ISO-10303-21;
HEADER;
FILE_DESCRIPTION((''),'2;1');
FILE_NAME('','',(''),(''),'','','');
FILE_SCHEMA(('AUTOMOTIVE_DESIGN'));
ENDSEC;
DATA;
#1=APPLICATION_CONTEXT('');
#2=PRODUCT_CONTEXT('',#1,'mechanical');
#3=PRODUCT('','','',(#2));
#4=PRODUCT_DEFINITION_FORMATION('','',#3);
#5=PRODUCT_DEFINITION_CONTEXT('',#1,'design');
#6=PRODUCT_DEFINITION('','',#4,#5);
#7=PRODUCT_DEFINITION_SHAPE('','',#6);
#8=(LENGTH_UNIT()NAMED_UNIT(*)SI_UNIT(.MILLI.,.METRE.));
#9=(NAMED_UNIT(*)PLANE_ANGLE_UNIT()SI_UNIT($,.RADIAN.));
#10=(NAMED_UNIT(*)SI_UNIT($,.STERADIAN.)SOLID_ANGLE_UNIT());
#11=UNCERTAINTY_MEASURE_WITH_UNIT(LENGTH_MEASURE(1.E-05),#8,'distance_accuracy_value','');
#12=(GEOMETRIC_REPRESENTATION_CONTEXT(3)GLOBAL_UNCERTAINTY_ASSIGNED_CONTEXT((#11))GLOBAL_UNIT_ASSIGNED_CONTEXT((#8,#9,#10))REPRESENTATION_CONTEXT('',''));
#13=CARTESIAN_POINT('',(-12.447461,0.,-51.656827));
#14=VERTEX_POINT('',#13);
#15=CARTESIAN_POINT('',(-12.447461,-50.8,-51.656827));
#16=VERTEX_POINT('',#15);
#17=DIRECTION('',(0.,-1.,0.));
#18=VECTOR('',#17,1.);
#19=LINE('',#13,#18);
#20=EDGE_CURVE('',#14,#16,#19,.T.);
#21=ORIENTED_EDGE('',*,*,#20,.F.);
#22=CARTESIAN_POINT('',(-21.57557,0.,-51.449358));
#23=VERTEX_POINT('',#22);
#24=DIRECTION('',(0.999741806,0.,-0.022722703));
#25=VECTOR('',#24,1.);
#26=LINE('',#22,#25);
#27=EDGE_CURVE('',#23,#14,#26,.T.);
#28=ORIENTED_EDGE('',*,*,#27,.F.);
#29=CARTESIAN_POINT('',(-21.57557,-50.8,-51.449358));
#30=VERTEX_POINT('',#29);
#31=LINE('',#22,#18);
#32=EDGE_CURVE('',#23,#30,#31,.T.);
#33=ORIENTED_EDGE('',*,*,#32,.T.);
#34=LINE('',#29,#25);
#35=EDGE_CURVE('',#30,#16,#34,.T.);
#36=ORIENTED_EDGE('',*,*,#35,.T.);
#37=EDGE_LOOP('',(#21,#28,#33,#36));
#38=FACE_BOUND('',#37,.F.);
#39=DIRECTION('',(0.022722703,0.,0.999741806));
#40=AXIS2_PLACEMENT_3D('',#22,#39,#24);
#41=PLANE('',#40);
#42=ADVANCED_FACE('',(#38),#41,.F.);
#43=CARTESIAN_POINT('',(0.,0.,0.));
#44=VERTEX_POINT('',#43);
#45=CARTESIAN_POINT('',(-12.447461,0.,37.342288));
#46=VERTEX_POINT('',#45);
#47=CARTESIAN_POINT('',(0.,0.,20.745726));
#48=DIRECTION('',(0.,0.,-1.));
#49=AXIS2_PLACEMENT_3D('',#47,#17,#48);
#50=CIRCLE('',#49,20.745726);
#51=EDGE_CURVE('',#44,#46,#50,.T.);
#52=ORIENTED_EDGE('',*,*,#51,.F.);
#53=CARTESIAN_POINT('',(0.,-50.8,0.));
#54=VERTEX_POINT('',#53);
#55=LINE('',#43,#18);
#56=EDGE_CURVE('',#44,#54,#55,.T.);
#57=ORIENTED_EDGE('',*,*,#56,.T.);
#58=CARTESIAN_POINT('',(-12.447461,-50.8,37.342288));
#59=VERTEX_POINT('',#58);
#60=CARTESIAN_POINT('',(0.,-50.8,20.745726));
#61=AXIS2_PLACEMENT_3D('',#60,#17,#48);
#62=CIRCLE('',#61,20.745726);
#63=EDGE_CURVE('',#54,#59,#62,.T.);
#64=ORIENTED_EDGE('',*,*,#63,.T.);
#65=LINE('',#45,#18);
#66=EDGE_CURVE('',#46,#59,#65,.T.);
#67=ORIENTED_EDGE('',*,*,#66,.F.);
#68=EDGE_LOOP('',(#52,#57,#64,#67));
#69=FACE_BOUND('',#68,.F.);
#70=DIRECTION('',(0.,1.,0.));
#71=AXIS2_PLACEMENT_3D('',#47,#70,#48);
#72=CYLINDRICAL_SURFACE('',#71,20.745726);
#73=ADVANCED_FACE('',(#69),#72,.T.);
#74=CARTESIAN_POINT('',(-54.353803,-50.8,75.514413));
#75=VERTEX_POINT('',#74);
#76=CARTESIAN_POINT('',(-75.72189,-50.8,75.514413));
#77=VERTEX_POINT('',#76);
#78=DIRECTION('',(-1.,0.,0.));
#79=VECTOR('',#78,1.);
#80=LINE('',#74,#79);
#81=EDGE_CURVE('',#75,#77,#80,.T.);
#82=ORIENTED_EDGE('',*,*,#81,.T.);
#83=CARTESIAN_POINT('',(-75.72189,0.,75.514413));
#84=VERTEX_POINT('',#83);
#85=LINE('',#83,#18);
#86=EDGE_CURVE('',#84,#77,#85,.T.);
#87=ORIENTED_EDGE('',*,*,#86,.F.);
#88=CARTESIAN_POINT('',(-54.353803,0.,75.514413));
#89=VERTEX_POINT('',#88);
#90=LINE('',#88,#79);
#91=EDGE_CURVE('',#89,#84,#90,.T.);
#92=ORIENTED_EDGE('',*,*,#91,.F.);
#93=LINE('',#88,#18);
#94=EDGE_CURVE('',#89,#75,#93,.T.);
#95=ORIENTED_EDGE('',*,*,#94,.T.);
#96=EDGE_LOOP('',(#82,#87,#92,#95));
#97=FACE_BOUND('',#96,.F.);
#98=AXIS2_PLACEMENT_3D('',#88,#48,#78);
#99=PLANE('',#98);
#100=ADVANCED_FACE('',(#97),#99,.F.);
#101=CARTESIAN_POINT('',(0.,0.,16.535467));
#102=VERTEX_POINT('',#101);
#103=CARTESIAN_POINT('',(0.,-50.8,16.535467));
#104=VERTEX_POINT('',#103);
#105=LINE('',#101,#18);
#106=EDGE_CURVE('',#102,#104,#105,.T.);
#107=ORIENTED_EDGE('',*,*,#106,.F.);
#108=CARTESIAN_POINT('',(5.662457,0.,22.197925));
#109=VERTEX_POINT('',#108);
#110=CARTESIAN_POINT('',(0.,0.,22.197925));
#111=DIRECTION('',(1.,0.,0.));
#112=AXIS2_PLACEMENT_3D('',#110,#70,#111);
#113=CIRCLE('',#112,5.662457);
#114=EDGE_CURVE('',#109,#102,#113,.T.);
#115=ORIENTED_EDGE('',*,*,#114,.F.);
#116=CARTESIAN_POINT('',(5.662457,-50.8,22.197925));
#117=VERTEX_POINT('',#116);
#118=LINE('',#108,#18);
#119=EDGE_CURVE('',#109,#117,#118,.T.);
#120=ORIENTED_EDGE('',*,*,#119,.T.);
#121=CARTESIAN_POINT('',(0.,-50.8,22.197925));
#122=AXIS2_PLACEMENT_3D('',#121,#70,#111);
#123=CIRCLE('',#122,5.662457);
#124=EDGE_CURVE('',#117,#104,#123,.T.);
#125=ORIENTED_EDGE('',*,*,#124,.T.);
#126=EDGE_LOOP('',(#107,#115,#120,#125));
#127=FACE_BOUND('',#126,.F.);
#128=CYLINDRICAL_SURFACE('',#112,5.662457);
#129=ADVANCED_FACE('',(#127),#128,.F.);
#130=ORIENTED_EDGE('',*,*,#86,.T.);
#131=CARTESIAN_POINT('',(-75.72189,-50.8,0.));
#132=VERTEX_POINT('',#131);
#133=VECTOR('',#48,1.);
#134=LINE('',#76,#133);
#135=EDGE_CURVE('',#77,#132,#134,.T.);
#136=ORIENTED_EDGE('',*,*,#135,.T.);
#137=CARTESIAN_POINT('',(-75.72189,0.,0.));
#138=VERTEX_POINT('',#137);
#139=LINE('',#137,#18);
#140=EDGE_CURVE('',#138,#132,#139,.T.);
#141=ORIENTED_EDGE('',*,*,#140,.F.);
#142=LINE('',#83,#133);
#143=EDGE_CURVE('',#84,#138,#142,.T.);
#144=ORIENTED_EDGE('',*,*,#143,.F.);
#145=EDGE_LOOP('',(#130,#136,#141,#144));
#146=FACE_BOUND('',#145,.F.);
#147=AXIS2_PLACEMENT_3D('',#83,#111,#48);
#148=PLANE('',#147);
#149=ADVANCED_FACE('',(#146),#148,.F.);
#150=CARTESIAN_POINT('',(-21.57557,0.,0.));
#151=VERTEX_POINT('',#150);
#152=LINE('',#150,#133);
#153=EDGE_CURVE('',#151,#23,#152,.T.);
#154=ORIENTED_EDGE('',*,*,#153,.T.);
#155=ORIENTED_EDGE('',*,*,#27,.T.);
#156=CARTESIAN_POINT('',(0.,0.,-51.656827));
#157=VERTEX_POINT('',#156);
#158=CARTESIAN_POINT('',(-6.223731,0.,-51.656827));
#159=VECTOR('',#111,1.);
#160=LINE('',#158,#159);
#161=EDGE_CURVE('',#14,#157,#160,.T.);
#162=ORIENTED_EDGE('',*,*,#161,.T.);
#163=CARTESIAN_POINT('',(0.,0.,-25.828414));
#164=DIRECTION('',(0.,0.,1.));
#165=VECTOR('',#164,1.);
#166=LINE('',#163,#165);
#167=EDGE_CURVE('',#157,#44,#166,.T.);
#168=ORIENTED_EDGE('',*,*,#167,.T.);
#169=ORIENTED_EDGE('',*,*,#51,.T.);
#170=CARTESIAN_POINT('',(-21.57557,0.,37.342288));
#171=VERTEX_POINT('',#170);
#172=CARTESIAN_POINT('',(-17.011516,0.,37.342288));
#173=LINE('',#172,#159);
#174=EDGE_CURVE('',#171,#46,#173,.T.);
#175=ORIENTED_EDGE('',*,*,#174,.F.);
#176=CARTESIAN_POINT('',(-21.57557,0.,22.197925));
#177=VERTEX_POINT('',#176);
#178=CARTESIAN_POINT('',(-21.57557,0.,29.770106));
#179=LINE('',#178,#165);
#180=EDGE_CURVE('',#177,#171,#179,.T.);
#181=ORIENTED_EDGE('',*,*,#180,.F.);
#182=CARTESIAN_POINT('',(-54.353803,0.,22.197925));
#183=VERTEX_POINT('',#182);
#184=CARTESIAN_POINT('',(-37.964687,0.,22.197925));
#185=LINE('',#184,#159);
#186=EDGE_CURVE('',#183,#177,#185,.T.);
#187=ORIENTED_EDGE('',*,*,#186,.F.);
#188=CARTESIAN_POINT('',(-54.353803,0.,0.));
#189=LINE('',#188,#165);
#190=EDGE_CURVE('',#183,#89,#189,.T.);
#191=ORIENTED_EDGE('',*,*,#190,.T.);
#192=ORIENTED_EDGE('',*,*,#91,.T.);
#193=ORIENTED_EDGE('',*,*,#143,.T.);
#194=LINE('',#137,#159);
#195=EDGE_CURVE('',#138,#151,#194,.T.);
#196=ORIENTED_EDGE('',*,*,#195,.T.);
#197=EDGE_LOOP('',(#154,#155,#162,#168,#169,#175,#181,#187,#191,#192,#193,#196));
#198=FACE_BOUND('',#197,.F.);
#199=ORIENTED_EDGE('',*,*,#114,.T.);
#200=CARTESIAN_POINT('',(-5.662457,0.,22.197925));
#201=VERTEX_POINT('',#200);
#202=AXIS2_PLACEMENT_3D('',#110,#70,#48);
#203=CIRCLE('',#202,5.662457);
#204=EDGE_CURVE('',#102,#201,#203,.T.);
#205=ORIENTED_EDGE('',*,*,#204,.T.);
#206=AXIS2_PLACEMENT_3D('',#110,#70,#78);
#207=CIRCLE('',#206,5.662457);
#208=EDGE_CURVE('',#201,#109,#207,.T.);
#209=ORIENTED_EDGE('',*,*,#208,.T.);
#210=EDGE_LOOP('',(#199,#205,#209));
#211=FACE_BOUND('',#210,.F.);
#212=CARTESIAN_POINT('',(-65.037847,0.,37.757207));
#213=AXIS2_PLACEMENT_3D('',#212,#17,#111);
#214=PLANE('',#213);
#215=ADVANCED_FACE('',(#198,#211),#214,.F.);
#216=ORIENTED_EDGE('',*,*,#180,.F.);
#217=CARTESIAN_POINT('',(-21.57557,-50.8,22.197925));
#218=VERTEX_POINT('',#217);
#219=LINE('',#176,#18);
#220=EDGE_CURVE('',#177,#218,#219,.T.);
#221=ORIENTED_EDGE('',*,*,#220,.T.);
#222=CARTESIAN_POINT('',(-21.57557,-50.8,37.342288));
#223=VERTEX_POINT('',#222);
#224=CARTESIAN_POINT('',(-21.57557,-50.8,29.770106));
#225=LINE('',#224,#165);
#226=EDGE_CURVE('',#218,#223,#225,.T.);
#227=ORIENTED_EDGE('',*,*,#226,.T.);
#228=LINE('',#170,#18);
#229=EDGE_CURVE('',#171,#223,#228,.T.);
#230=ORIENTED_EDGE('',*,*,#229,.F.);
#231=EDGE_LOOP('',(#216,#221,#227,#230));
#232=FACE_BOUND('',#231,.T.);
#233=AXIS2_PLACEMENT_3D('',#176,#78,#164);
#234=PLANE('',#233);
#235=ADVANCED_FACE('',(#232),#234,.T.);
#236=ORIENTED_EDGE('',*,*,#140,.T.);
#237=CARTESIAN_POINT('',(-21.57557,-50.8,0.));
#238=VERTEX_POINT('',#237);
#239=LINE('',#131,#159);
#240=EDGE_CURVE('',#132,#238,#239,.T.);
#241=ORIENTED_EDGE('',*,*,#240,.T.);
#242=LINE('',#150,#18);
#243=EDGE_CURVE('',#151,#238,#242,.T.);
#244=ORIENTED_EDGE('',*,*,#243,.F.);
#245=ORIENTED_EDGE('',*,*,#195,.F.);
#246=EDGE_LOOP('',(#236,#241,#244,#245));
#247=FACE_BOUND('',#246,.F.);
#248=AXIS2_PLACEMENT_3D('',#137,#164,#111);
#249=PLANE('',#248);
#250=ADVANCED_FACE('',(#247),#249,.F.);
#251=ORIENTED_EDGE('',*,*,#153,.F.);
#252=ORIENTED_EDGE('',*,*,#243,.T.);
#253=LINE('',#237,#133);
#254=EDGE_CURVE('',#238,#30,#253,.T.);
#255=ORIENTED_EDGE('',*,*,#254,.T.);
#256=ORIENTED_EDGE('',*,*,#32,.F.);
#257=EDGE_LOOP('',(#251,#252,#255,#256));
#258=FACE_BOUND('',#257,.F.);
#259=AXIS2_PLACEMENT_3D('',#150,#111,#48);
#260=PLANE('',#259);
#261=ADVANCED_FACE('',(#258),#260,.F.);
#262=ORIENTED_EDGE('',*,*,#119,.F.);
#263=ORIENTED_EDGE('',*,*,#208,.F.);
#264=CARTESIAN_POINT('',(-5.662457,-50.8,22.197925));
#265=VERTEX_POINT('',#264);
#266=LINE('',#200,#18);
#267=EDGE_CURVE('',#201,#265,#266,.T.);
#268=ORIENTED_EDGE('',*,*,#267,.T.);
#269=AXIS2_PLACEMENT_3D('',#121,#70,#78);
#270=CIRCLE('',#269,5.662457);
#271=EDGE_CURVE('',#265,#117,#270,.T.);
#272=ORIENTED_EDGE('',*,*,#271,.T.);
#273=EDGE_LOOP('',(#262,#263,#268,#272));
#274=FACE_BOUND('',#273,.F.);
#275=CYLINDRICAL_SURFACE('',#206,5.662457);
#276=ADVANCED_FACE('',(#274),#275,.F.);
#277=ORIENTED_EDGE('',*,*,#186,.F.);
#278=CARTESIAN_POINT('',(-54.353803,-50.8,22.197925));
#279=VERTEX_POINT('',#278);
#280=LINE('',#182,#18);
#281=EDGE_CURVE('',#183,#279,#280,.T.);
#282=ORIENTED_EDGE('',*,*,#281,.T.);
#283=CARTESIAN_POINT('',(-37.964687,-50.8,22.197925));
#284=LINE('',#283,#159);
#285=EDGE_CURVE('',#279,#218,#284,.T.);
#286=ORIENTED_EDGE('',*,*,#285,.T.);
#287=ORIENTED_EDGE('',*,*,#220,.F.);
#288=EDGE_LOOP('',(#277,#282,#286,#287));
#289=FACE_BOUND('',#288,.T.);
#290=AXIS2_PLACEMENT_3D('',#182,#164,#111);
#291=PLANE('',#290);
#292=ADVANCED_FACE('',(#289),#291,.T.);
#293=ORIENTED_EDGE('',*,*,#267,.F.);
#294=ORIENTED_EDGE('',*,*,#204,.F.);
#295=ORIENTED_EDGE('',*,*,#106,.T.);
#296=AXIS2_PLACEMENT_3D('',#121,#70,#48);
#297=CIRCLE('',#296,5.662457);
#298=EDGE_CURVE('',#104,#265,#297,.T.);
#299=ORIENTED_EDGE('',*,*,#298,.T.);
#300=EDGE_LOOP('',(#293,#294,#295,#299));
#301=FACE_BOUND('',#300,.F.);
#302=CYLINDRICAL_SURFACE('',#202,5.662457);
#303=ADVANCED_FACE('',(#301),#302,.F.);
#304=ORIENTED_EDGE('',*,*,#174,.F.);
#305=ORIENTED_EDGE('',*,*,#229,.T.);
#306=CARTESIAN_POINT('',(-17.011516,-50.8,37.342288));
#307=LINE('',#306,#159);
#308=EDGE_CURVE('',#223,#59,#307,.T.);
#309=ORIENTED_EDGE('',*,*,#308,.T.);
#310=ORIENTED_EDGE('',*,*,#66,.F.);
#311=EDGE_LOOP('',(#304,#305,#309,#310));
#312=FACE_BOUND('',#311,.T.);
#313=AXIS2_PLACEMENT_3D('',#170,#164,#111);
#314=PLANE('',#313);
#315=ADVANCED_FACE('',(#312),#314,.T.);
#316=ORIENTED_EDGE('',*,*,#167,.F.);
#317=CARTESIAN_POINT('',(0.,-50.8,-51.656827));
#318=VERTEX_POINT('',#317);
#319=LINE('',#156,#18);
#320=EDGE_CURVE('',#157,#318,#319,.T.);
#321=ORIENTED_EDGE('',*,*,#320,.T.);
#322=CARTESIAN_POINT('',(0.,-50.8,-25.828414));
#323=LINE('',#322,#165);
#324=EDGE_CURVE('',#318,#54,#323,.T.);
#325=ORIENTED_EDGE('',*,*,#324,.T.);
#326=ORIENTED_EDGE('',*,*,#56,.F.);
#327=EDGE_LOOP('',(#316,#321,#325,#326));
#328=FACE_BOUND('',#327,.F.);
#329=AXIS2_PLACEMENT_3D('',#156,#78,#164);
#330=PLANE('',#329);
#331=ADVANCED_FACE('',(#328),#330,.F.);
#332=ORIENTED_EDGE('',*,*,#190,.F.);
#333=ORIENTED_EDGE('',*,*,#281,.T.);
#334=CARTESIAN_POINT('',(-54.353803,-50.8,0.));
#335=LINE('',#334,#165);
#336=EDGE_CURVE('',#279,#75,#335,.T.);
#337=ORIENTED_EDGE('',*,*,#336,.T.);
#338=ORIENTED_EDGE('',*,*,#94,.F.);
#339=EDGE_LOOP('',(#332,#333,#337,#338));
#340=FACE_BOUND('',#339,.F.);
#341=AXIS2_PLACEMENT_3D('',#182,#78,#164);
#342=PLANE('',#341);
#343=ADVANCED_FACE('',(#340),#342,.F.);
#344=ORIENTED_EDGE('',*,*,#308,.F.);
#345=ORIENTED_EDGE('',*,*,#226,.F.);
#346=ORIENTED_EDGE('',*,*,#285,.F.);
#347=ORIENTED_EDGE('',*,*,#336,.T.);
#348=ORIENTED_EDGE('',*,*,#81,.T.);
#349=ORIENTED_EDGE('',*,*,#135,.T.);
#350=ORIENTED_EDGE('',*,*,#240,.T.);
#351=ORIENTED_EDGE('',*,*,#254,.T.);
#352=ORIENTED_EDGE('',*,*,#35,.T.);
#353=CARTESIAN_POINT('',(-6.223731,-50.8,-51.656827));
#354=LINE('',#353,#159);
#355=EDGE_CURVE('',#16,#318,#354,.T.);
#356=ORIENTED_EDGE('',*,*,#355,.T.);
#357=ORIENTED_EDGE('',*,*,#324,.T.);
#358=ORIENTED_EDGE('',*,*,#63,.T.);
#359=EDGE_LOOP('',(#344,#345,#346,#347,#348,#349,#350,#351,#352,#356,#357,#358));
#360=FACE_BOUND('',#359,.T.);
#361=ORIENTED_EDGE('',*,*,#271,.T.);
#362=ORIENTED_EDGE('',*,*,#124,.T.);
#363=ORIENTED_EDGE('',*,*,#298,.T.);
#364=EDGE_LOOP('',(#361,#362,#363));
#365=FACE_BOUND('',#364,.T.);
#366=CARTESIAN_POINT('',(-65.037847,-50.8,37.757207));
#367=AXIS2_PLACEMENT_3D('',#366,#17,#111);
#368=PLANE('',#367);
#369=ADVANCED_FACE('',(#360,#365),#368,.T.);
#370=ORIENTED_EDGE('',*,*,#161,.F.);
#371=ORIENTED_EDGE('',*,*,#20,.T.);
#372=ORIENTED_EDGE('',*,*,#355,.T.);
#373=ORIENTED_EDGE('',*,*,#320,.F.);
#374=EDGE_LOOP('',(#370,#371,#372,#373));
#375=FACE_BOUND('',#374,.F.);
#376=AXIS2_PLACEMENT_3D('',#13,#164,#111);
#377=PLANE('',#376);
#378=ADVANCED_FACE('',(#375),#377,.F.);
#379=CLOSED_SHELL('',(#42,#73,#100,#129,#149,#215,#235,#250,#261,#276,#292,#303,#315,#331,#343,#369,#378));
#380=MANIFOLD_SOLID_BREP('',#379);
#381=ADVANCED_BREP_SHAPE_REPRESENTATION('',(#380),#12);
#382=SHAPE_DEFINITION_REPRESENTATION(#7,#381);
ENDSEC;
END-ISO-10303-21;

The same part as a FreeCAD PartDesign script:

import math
import FreeCAD as App
import Part
import Sketcher
Q = App.Units.Quantity

doc = App.newDocument("Part")
body = doc.addObject("PartDesign::Body", "Body")

# Sketch on XZ plane
sketch1 = body.newObject("Sketcher::SketchObject", "Sketch")
sketch1.AttachmentSupport = (doc.getObject("XZ_Plane"), [""])
sketch1.MapMode = "FlatFace"
sketch1.addGeometry([
    Part.LineSegment(App.Vector(-54.353803, 75.514413, 0), App.Vector(-75.72189, 75.514413, 0)),  # 0
    Part.LineSegment(App.Vector(-75.72189, 75.514413, 0), App.Vector(-75.72189, 0, 0)),  # 1
    Part.LineSegment(App.Vector(-75.72189, 0, 0), App.Vector(-21.57557, 0, 0)),  # 2
    Part.LineSegment(App.Vector(-21.57557, 0, 0), App.Vector(-21.57557, -51.449358, 0)),  # 3
    Part.LineSegment(App.Vector(-21.57557, -51.449358, 0), App.Vector(-12.447461, -51.656827, 0)),  # 4
    Part.LineSegment(App.Vector(-12.447461, -51.656827, 0), App.Vector(0, -51.656827, 0)),  # 5
    Part.LineSegment(App.Vector(0, -51.656827, 0), App.Vector(0, 0, 0)),  # 6
    Part.ArcOfCircle(Part.Circle(App.Vector(0, 20.745726, 0), App.Vector(0, 0, 1), 20.745726), math.radians(-90), math.radians(126.869987)),  # 7
    Part.LineSegment(App.Vector(-12.447461, 37.342288, 0), App.Vector(-21.57557, 37.342288, 0)),  # 8
    Part.LineSegment(App.Vector(-21.57557, 37.342288, 0), App.Vector(-21.57557, 22.197925, 0)),  # 9
    Part.LineSegment(App.Vector(-21.57557, 22.197925, 0), App.Vector(-54.353803, 22.197925, 0)),  # 10
    Part.LineSegment(App.Vector(-54.353803, 22.197925, 0), App.Vector(-54.353803, 75.514413, 0)),  # 11
    Part.ArcOfCircle(Part.Circle(App.Vector(0, 22.197925, 0), App.Vector(0, 0, 1), 5.662457), math.radians(0), math.radians(180)),  # 12
    Part.ArcOfCircle(Part.Circle(App.Vector(0, 22.197925, 0), App.Vector(0, 0, 1), 5.662457), math.radians(-90), math.radians(0)),  # 13
    Part.ArcOfCircle(Part.Circle(App.Vector(0, 22.197925, 0), App.Vector(0, 0, 1), 5.662457), math.radians(180), math.radians(270)),  # 14
], False)
sketch1.addConstraint([
    Sketcher.Constraint("Coincident", 0, 2, 1, 1),
    Sketcher.Constraint("Coincident", 1, 2, 2, 1),
    Sketcher.Constraint("Coincident", 2, 2, 3, 1),
    Sketcher.Constraint("Coincident", 3, 2, 4, 1),
    Sketcher.Constraint("Coincident", 4, 2, 5, 1),
    Sketcher.Constraint("Coincident", 5, 2, 6, 1),
    Sketcher.Constraint("Coincident", 6, 2, 7, 1),
    Sketcher.Constraint("Coincident", 7, 2, 8, 1),
    Sketcher.Constraint("Coincident", 8, 2, 9, 1),
    Sketcher.Constraint("Coincident", 9, 2, 10, 1),
    Sketcher.Constraint("Coincident", 10, 2, 11, 1),
    Sketcher.Constraint("Coincident", 11, 2, 0, 1),
    Sketcher.Constraint("Tangent", 12, 1, 13, 2),
    Sketcher.Constraint("Tangent", 13, 1, 14, 2),
    Sketcher.Constraint("Tangent", 14, 1, 12, 2),
    Sketcher.Constraint("Horizontal", 0),
    Sketcher.Constraint("Vertical", 1),
    Sketcher.Constraint("Horizontal", 2),
    Sketcher.Constraint("Vertical", 3),
    Sketcher.Constraint("Horizontal", 5),
    Sketcher.Constraint("Vertical", 6),
    Sketcher.Constraint("Horizontal", 8),
    Sketcher.Constraint("Vertical", 9),
    Sketcher.Constraint("Horizontal", 10),
    Sketcher.Constraint("Vertical", 11),
    Sketcher.Constraint("Coincident", 6, 2, -1, 1),
    Sketcher.Constraint("Symmetric", 12, 1, 14, 1, -2),
    Sketcher.Constraint("PointOnObject", 7, 3, -2),
    Sketcher.Constraint("PointOnObject", 1, 2, -1),
    Sketcher.Constraint("PointOnObject", 13, 1, -2),
    Sketcher.Constraint("Horizontal", 14, 3, 9, 2),
    Sketcher.Constraint("Horizontal", 10, 2, 12, 1),
    Sketcher.Constraint("Vertical", 4, 2, 7, 2),
    Sketcher.Constraint("Vertical", 3, 2, 8, 2),
    Sketcher.Constraint("Radius", 7, Q("20.745726 mm")),
    Sketcher.Constraint("Radius", 12, Q("5.662457 mm")),
    Sketcher.Constraint("DistanceX", 2, 1, 2, 2, Q("54.14632 mm")),
    Sketcher.Constraint("DistanceX", 5, 1, 5, 2, Q("12.447461 mm")),
    Sketcher.Constraint("DistanceX", 8, 2, 8, 1, Q("9.128109 mm")),
    Sketcher.Constraint("DistanceY", 3, 2, 3, 1, Q("51.449358 mm")),
    Sketcher.Constraint("DistanceY", 11, 1, 11, 2, Q("53.316489 mm")),
    Sketcher.Constraint("DistanceY", 7, 3, 12, 3, Q("1.452198 mm")),
    Sketcher.Constraint("DistanceX", 0, 2, 0, 1, Q("21.368086 mm")),
    Sketcher.Constraint("DistanceY", 6, 1, 6, 2, Q("51.656827 mm")),
])
pad1 = body.newObject("PartDesign::Pad", "Pad")
pad1.Profile = sketch1
pad1.Length = Q("2 in")

doc.recompute()
